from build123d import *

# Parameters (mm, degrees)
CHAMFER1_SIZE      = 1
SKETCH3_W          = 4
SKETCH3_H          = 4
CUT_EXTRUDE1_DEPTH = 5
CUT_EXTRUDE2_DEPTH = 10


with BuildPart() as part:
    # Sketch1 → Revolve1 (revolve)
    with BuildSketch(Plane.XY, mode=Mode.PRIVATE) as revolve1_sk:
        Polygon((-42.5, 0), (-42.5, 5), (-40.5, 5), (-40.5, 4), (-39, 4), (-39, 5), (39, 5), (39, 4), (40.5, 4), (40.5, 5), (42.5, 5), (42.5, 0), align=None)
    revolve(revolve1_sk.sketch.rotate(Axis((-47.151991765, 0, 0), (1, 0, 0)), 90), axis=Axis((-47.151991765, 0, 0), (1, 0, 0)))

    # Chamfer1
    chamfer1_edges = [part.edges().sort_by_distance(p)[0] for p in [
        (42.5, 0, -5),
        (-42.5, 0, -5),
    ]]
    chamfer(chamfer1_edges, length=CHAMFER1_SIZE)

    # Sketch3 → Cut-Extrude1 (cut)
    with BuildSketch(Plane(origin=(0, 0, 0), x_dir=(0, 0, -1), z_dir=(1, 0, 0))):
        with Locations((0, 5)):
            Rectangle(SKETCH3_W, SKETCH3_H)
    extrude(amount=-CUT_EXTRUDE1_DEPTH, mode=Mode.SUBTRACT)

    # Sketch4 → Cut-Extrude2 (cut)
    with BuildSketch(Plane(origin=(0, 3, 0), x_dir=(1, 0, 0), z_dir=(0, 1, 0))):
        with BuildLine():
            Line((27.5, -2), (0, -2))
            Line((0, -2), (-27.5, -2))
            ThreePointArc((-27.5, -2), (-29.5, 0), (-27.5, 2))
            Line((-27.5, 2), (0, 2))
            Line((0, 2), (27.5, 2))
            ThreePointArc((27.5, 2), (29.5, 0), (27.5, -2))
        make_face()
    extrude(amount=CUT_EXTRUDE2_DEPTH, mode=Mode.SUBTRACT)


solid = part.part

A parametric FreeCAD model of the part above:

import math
import FreeCAD as App
import Part
import Sketcher
Q = App.Units.Quantity


def edges_at(feature, points):
    """Names of the edges that pass closest to the given points."""
    edges = feature.Shape.Edges
    near = lambda p: min(range(len(edges)), key=lambda i: edges[i].distToShape(Part.Vertex(*p))[0])
    return sorted({f"Edge{near(p) + 1}" for p in points})

doc = App.newDocument("Part")
body = doc.addObject("PartDesign::Body", "Body")

# Sketch on XY plane
sketch1 = body.newObject("Sketcher::SketchObject", "Sketch")
sketch1.AttachmentSupport = (doc.getObject("XY_Plane"), [""])
sketch1.MapMode = "FlatFace"
sketch1.addGeometry(Part.LineSegment(App.Vector(-42.5, 5, 0), App.Vector(-42.5, 0, 0)), False)
sketch1.addGeometry(Part.LineSegment(App.Vector(-42.5, 0, 0), App.Vector(42.5, 0, 0)), False)
sketch1.addGeometry(Part.LineSegment(App.Vector(42.5, 0, 0), App.Vector(42.5, 5, 0)), False)
sketch1.addGeometry(Part.LineSegment(App.Vector(42.5, 5, 0), App.Vector(40.5, 5, 0)), False)
sketch1.addGeometry(Part.LineSegment(App.Vector(40.5, 5, 0), App.Vector(40.5, 4, 0)), False)
sketch1.addGeometry(Part.LineSegment(App.Vector(40.5, 4, 0), App.Vector(39, 4, 0)), False)
sketch1.addGeometry(Part.LineSegment(App.Vector(39, 4, 0), App.Vector(39, 5, 0)), False)
sketch1.addGeometry(Part.LineSegment(App.Vector(39, 5, 0), App.Vector(-39, 5, 0)), False)
sketch1.addGeometry(Part.LineSegment(App.Vector(-39, 5, 0), App.Vector(-39, 4, 0)), False)
sketch1.addGeometry(Part.LineSegment(App.Vector(-39, 4, 0), App.Vector(-40.5, 4, 0)), False)
sketch1.addGeometry(Part.LineSegment(App.Vector(-40.5, 4, 0), App.Vector(-40.5, 5, 0)), False)
sketch1.addGeometry(Part.LineSegment(App.Vector(-40.5, 5, 0), App.Vector(-42.5, 5, 0)), False)
sketch1.addConstraint(Sketcher.Constraint("Coincident", 0, 2, 1, 1))
sketch1.addConstraint(Sketcher.Constraint("Coincident", 1, 2, 2, 1))
sketch1.addConstraint(Sketcher.Constraint("Coincident", 2, 2, 3, 1))
sketch1.addConstraint(Sketcher.Constraint("Coincident", 3, 2, 4, 1))
sketch1.addConstraint(Sketcher.Constraint("Coincident", 4, 2, 5, 1))
sketch1.addConstraint(Sketcher.Constraint("Coincident", 5, 2, 6, 1))
sketch1.addConstraint(Sketcher.Constraint("Coincident", 6, 2, 7, 1))
sketch1.addConstraint(Sketcher.Constraint("Coincident", 7, 2, 8, 1))
sketch1.addConstraint(Sketcher.Constraint("Coincident", 8, 2, 9, 1))
sketch1.addConstraint(Sketcher.Constraint("Coincident", 9, 2, 10, 1))
sketch1.addConstraint(Sketcher.Constraint("Coincident", 10, 2, 11, 1))
sketch1.addConstraint(Sketcher.Constraint("Coincident", 11, 2, 0, 1))
sketch1.addConstraint(Sketcher.Constraint("Vertical", 0))
sketch1.addConstraint(Sketcher.Constraint("Horizontal", 1))
sketch1.addConstraint(Sketcher.Constraint("Vertical", 2))
sketch1.addConstraint(Sketcher.Constraint("Horizontal", 3))
sketch1.addConstraint(Sketcher.Constraint("Vertical", 4))
sketch1.addConstraint(Sketcher.Constraint("Horizontal", 5))
sketch1.addConstraint(Sketcher.Constraint("Vertical", 6))
sketch1.addConstraint(Sketcher.Constraint("Horizontal", 7))
sketch1.addConstraint(Sketcher.Constraint("Vertical", 8))
sketch1.addConstraint(Sketcher.Constraint("Horizontal", 9))
sketch1.addConstraint(Sketcher.Constraint("Vertical", 10))
sketch1.addConstraint(Sketcher.Constraint("Horizontal", 11))
sketch1.addConstraint(Sketcher.Constraint("Symmetric", 0, 2, 1, 2, -1, 1))
sketch1.addConstraint(Sketcher.Constraint("Symmetric", 5, 2, 8, 2, -2))
sketch1.addConstraint(Sketcher.Constraint("Symmetric", 3, 2, 10, 2, -2))
sketch1.addConstraint(Sketcher.Constraint("Horizontal", 3, 2, 6, 2))
sketch1.addConstraint(Sketcher.Constraint("DistanceX", 1, 1, 1, 2, Q("85 mm")))
sketch1.addConstraint(Sketcher.Constraint("DistanceX", 3, 2, 3, 1, Q("2 mm")))
sketch1.addConstraint(Sketcher.Constraint("DistanceX", 7, 2, 7, 1, Q("78 mm")))
sketch1.addConstraint(Sketcher.Constraint("DistanceY", 0, 2, 0, 1, Q("5 mm")))
sketch1.addConstraint(Sketcher.Constraint("DistanceY", 4, 2, 4, 1, Q("1 mm")))
revolution = body.newObject("PartDesign::Revolution", "Revolution")
revolution.Profile = sketch1
revolution.ReferenceAxis = (sketch1, ["H_Axis"])
revolution.Angle = 360
doc.recompute()

chamfer = body.newObject("PartDesign::Chamfer", "Chamfer")
chamfer.Base = (revolution, edges_at(revolution, [(42.5, 0, -5), (-42.5, 0, -5)]))
chamfer.Size = 1

# Sketch on YZ plane
sketch2 = body.newObject("Sketcher::SketchObject", "Sketch001")
sketch2.AttachmentSupport = (doc.getObject("YZ_Plane"), [""])
sketch2.MapMode = "FlatFace"
sketch2.addGeometry(Part.LineSegment(App.Vector(7, 2, 0), App.Vector(3, 2, 0)), False)
sketch2.addGeometry(Part.LineSegment(App.Vector(3, 2, 0), App.Vector(3, -2, 0)), False)
sketch2.addGeometry(Part.LineSegment(App.Vector(3, -2, 0), App.Vector(7, -2, 0)), False)
sketch2.addGeometry(Part.LineSegment(App.Vector(7, -2, 0), App.Vector(7, 2, 0)), False)
sketch2.addConstraint(Sketcher.Constraint("Coincident", 0, 2, 1, 1))
sketch2.addConstraint(Sketcher.Constraint("Coincident", 1, 2, 2, 1))
sketch2.addConstraint(Sketcher.Constraint("Coincident", 2, 2, 3, 1))
sketch2.addConstraint(Sketcher.Constraint("Coincident", 3, 2, 0, 1))
sketch2.addConstraint(Sketcher.Constraint("Horizontal", 0))
sketch2.addConstraint(Sketcher.Constraint("Vertical", 1))
sketch2.addConstraint(Sketcher.Constraint("Horizontal", 2))
sketch2.addConstraint(Sketcher.Constraint("Vertical", 3))
sketch2.addConstraint(Sketcher.Constraint("Equal", 2, 1))
sketch2.addConstraint(Sketcher.Constraint("DistanceX", 0, 2, 0, 1, Q("4 mm")))
sketch2.addConstraint(Sketcher.Constraint("DistanceX", -1, 1, 0, 2, Q("3 mm")))
sketch2.addConstraint(Sketcher.Constraint("DistanceY", -1, 1, 0, 2, Q("2 mm")))
pocket1 = body.newObject("PartDesign::Pocket", "Pocket")
pocket1.Profile = sketch2
pocket1.Length = 5

# Sketch on XZ plane
sketch3 = body.newObject("Sketcher::SketchObject", "Sketch002")
sketch3.AttachmentSupport = (doc.getObject("XZ_Plane"), [""])
sketch3.MapMode = "FlatFace"
sketch3.AttachmentOffset = App.Placement(App.Vector(0, 0, -3), App.Rotation())
sketch3.addGeometry(Part.LineSegment(App.Vector(-27.5, 2, 0), App.Vector(27.5, 2, 0)), False)
sketch3.addGeometry(Part.ArcOfCircle(Part.Circle(App.Vector(27.5, 0, 0), App.Vector(0, 0, 1), 2), math.radians(-90), math.radians(90)), False)
sketch3.addGeometry(Part.LineSegment(App.Vector(27.5, -2, 0), App.Vector(-27.5, -2, 0)), False)
sketch3.addGeometry(Part.ArcOfCircle(Part.Circle(App.Vector(-27.5, 0, 0), App.Vector(0, 0, 1), 2), math.radians(90), math.radians(270)), False)
sketch3.addConstraint(Sketcher.Constraint("Tangent", 0, 2, 1, 2))
sketch3.addConstraint(Sketcher.Constraint("Tangent", 1, 1, 2, 1))
sketch3.addConstraint(Sketcher.Constraint("Tangent", 2, 2, 3, 2))
sketch3.addConstraint(Sketcher.Constraint("Tangent", 3, 1, 0, 1))
sketch3.addConstraint(Sketcher.Constraint("Horizontal", 0))
sketch3.addConstraint(Sketcher.Constraint("Horizontal", 2))
sketch3.addConstraint(Sketcher.Constraint("Symmetric", 1, 3, 3, 3, -1, 1))
sketch3.addConstraint(Sketcher.Constraint("Radius", 1, Q("2 mm")))
sketch3.addConstraint(Sketcher.Constraint("DistanceX", 0, 1, 0, 2, Q("55 mm")))
pocket2 = body.newObject("PartDesign::Pocket", "Pocket001")
pocket2.Profile = sketch3
pocket2.Length = 10

doc.recompute()
